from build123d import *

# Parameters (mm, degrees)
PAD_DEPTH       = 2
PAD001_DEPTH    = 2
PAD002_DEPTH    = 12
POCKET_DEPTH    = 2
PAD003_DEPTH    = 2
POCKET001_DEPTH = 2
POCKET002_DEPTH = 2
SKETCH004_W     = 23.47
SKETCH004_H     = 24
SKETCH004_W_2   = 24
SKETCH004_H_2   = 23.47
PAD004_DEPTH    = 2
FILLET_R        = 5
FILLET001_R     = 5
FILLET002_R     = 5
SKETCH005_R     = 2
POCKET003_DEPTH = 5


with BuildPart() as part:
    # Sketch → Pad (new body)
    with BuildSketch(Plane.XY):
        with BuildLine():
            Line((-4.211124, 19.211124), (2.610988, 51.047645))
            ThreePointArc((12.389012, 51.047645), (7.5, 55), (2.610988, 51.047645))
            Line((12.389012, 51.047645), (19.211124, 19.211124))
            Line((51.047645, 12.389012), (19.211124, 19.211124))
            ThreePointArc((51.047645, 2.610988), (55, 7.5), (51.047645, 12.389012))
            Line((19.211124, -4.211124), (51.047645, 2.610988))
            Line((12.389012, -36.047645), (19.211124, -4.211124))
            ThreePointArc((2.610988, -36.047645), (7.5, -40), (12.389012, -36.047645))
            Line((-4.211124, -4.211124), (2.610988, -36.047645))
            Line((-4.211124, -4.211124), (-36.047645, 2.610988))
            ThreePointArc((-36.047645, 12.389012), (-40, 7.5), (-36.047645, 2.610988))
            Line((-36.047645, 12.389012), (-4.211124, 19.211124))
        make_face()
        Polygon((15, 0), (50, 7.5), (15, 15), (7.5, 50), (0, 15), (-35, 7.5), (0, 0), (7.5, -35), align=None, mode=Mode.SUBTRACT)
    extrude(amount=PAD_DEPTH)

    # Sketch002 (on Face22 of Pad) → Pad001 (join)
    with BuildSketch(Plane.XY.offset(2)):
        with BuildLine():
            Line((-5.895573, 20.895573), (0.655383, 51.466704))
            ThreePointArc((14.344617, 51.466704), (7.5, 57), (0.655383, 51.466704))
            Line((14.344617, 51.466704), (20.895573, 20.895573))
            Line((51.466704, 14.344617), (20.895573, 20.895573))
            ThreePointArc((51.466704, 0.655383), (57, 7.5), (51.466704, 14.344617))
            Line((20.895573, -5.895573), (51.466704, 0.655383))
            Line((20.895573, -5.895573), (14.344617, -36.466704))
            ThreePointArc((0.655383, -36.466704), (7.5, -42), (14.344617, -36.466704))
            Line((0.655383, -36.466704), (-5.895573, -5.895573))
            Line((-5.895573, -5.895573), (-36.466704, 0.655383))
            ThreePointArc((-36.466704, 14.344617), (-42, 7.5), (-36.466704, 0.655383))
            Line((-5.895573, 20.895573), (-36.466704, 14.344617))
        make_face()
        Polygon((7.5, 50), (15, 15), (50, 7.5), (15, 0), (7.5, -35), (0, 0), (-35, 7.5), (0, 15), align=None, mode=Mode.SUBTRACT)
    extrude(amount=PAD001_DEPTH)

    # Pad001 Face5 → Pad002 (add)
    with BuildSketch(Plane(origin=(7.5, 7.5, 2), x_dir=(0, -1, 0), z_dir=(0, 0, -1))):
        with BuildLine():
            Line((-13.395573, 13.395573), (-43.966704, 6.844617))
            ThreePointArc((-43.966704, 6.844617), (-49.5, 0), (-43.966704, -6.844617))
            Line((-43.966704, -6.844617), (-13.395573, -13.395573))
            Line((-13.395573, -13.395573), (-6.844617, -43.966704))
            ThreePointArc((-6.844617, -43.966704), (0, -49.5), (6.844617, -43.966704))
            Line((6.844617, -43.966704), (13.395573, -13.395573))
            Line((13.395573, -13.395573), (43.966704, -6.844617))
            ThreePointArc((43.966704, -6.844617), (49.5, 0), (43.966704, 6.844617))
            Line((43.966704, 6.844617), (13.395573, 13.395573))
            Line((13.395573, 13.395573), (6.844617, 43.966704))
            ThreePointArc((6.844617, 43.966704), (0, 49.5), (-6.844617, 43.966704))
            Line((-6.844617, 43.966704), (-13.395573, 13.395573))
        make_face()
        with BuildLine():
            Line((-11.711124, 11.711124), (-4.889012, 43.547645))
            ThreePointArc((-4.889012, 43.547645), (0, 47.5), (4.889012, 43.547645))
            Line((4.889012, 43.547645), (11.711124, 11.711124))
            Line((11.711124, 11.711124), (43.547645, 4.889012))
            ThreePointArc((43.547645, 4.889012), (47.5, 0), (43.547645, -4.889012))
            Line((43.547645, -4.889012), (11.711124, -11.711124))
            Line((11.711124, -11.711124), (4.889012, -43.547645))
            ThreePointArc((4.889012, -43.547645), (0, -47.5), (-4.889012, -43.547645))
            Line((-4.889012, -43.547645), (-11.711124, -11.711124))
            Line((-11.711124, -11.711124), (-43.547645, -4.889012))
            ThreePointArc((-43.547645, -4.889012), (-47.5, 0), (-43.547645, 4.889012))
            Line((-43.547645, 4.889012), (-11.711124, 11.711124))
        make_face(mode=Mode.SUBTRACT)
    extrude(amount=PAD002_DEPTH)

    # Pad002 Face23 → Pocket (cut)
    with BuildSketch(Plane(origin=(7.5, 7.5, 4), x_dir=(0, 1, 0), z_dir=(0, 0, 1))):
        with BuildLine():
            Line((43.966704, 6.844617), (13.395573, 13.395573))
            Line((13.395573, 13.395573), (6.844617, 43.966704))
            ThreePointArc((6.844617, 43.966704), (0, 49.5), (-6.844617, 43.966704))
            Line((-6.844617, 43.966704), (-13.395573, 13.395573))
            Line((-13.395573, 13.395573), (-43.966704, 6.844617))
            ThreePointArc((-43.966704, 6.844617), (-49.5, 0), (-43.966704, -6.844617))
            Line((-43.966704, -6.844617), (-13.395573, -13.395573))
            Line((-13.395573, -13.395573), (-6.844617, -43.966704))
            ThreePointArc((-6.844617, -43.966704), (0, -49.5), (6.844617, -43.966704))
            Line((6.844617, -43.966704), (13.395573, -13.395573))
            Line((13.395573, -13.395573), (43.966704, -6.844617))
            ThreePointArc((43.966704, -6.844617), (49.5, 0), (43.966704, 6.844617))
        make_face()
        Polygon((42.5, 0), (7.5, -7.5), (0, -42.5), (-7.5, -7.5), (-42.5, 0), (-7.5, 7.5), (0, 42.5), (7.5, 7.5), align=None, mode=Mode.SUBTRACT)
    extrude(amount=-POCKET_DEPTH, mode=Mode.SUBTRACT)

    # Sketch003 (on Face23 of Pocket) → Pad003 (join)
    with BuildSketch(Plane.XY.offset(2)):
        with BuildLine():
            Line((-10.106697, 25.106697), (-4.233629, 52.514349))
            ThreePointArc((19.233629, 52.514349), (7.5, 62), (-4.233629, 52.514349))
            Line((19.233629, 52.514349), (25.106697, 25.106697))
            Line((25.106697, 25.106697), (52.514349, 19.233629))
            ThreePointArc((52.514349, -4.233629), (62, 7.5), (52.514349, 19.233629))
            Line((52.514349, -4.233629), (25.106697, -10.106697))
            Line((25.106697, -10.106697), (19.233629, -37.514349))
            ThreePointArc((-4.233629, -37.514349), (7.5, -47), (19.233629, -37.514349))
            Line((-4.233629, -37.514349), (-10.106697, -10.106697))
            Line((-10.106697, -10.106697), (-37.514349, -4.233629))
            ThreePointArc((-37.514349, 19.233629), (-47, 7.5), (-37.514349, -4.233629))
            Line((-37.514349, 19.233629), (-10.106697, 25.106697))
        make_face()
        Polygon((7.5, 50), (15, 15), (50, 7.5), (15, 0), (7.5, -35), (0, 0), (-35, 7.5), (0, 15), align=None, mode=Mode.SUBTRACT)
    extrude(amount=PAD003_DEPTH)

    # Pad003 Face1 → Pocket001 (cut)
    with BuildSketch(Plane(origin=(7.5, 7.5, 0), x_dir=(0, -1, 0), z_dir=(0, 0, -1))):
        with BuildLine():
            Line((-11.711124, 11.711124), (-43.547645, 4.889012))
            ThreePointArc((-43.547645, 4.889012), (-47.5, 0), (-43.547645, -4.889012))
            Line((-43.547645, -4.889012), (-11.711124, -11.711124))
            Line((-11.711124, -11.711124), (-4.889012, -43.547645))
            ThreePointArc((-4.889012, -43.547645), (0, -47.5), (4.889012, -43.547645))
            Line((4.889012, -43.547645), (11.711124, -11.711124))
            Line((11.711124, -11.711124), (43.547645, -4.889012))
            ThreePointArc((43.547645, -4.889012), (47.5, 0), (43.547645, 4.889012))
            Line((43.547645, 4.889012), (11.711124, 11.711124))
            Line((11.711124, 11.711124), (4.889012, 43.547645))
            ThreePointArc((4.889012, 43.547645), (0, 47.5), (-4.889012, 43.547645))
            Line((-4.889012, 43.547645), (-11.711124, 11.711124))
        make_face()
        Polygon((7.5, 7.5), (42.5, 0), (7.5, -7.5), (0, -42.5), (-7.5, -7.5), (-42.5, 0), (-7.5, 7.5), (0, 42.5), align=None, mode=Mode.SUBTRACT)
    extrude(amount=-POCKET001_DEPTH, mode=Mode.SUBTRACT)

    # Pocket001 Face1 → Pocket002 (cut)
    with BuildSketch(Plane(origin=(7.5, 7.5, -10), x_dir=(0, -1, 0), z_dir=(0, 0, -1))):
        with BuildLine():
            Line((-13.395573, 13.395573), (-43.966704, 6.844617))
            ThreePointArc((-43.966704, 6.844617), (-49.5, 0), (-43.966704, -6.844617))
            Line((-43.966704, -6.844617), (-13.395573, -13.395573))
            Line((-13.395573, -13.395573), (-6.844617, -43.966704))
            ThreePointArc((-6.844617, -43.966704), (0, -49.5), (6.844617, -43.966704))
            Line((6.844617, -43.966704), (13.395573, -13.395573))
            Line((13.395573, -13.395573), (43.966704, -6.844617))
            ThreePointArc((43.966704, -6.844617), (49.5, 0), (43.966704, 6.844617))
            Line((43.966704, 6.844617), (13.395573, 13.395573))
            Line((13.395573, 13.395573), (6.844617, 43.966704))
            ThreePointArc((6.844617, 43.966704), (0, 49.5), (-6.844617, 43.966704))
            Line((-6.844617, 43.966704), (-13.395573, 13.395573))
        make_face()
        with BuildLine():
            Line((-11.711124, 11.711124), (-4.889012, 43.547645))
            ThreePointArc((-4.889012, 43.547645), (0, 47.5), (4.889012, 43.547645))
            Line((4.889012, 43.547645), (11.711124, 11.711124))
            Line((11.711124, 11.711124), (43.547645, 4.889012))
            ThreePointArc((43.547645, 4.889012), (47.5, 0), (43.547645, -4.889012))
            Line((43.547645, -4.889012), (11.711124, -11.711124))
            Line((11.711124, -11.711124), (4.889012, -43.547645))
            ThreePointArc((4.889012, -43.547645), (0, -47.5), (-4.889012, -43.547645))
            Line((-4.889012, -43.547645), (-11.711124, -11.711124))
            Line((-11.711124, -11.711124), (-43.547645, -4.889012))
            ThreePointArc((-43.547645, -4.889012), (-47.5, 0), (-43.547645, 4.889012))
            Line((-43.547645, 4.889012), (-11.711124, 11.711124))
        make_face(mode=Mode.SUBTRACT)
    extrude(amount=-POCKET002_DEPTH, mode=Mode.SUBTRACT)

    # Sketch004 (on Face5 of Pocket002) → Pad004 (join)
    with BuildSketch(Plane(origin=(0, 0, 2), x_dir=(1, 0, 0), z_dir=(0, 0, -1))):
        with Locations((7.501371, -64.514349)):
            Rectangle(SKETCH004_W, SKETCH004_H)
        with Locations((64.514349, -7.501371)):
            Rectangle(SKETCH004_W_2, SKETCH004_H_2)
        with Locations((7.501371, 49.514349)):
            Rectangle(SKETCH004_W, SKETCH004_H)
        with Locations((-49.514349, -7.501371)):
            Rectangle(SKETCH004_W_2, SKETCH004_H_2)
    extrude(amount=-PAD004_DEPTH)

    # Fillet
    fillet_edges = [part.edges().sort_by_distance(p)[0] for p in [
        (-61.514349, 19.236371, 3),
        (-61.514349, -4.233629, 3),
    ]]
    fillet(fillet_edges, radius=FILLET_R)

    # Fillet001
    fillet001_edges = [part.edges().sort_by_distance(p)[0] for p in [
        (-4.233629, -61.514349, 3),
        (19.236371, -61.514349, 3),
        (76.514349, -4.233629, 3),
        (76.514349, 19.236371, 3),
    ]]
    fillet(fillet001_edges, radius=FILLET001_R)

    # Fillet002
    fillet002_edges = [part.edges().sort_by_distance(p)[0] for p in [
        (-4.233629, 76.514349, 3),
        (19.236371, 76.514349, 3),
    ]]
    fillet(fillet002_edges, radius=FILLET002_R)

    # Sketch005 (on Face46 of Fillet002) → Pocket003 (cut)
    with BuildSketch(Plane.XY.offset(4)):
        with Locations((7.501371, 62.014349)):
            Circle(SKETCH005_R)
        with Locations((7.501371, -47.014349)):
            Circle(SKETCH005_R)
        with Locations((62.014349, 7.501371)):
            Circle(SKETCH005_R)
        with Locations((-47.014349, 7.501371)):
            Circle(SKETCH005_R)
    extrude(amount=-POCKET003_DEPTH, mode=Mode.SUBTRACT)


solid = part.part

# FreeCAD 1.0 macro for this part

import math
import FreeCAD as App
import Part
import Sketcher


def edges_at(feature, points):
    """Names of the edges that pass closest to the given points."""
    edges = feature.Shape.Edges
    near = lambda p: min(range(len(edges)), key=lambda i: edges[i].distToShape(Part.Vertex(*p))[0])
    return sorted({f"Edge{near(p) + 1}" for p in points})

doc = App.newDocument("Part")
body = doc.addObject("PartDesign::Body", "Body")

sketch1 = doc.addObject("Sketcher::SketchObject", "Sketch")
body.addObject(sketch1)
sketch1.AttachmentSupport = (doc.XY_Plane, [""])
sketch1.MapMode = "FlatFace"
sketch1.addGeometry([
    Part.LineSegment(App.Vector(2.6, 51, 0), App.Vector(-4.2, 19.2, 0)),
    Part.LineSegment(App.Vector(-4.2, 19.2, 0), App.Vector(-36, 12.4, 0)),
    Part.ArcOfCircle(Part.Circle(App.Vector(-35, 7.5, 0), App.Vector(0, 0, 1), 5), math.radians(102), math.radians(258)),
    Part.LineSegment(App.Vector(-36, 2.6, 0), App.Vector(-4.2, -4.2, 0)),
    Part.LineSegment(App.Vector(-4.2, -4.2, 0), App.Vector(2.6, -36, 0)),
    Part.ArcOfCircle(Part.Circle(App.Vector(7.5, -35, 0), App.Vector(0, 0, 1), 5), math.radians(-168), math.radians(-12)),
    Part.LineSegment(App.Vector(12.4, -36, 0), App.Vector(19.2, -4.2, 0)),
    Part.LineSegment(App.Vector(19.2, -4.2, 0), App.Vector(51, 2.6, 0)),
    Part.ArcOfCircle(Part.Circle(App.Vector(50, 7.5, 0), App.Vector(0, 0, 1), 5), math.radians(-78), math.radians(78)),
    Part.LineSegment(App.Vector(51, 12.4, 0), App.Vector(19.2, 19.2, 0)),
    Part.LineSegment(App.Vector(19.2, 19.2, 0), App.Vector(12.4, 51, 0)),
    Part.ArcOfCircle(Part.Circle(App.Vector(7.5, 50, 0), App.Vector(0, 0, 1), 5), math.radians(12), math.radians(168)),
    Part.LineSegment(App.Vector(15, 0, 0), App.Vector(7.5, -35, 0)),
    Part.LineSegment(App.Vector(7.5, -35, 0), App.Vector(0, 0, 0)),
    Part.LineSegment(App.Vector(0, 0, 0), App.Vector(-35, 7.5, 0)),
    Part.LineSegment(App.Vector(-35, 7.5, 0), App.Vector(0, 15, 0)),
    Part.LineSegment(App.Vector(0, 15, 0), App.Vector(7.5, 50, 0)),
    Part.LineSegment(App.Vector(7.5, 50, 0), App.Vector(15, 15, 0)),
    Part.LineSegment(App.Vector(15, 15, 0), App.Vector(50, 7.5, 0)),
    Part.LineSegment(App.Vector(50, 7.5, 0), App.Vector(15, 0, 0)),
], False)
sketch1.addConstraint([
    Sketcher.Constraint("Coincident", 0, 2, 1, 1),
    Sketcher.Constraint("Tangent", 1, 2, 2, 1),
    Sketcher.Constraint("Tangent", 2, 2, 3, 1),
    Sketcher.Constraint("Coincident", 3, 2, 4, 1),
    Sketcher.Constraint("Tangent", 4, 2, 5, 1),
    Sketcher.Constraint("Tangent", 5, 2, 6, 1),
    Sketcher.Constraint("Coincident", 6, 2, 7, 1),
    Sketcher.Constraint("Tangent", 7, 2, 8, 1),
    Sketcher.Constraint("Tangent", 8, 2, 9, 1),
    Sketcher.Constraint("Coincident", 9, 2, 10, 1),
    Sketcher.Constraint("Tangent", 10, 2, 11, 1),
    Sketcher.Constraint("Tangent", 11, 2, 0, 1),
    Sketcher.Constraint("Coincident", 12, 2, 13, 1),
    Sketcher.Constraint("Coincident", 13, 2, 14, 1),
    Sketcher.Constraint("Coincident", 14, 2, 15, 1),
    Sketcher.Constraint("Coincident", 15, 2, 16, 1),
    Sketcher.Constraint("Coincident", 16, 2, 17, 1),
    Sketcher.Constraint("Coincident", 17, 2, 18, 1),
    Sketcher.Constraint("Coincident", 18, 2, 19, 1),
    Sketcher.Constraint("Coincident", 19, 2, 12, 1),
    Sketcher.Constraint("Coincident", 13, 2, -1, 1),
    Sketcher.Constraint("Coincident", 12, 2, 5, 3),
    Sketcher.Constraint("Coincident", 14, 2, 2, 3),
    Sketcher.Constraint("Coincident", 16, 2, 11, 3),
    Sketcher.Constraint("Coincident", 18, 2, 8, 3),
    Sketcher.Constraint("Equal", 2, 5),
    Sketcher.Constraint("Equal", 5, 8),
    Sketcher.Constraint("Equal", 8, 11),
    Sketcher.Constraint("PointOnObject", 15, 2, -2),
    Sketcher.Constraint("PointOnObject", 19, 2, -1),
    Sketcher.Constraint("Perpendicular", 0, 3),
    Sketcher.Constraint("Perpendicular", 1, 4),
    Sketcher.Constraint("Perpendicular", 3, 6),
    Sketcher.Constraint("Perpendicular", 4, 7),
    Sketcher.Constraint("Perpendicular", 6, 9),
    Sketcher.Constraint("Perpendicular", 7, 10),
    Sketcher.Constraint("Perpendicular", 9, 12),
    Sketcher.Constraint("Parallel", 10, 13),
    Sketcher.Constraint("Perpendicular", 12, 14),
    Sketcher.Constraint("Perpendicular", 13, 15),
    Sketcher.Constraint("Perpendicular", 14, 16),
    Sketcher.Constraint("Perpendicular", 15, 17),
    Sketcher.Constraint("Perpendicular", 16, 18),
    Sketcher.Constraint("Perpendicular", 17, 19),
    Sketcher.Constraint("Horizontal", 2, 3, 8, 3),
    Sketcher.Constraint("Horizontal", 4, 2, 5, 2),
    Sketcher.Constraint("Horizontal", 0, 2, 9, 2),
    Sketcher.Constraint("Equal", 0, 1),
    Sketcher.Constraint("Radius", 2, 5.0),
    Sketcher.Constraint("DistanceX", 2, 3, -1, 1, 35.0),
    Sketcher.Constraint("DistanceX", -1, 1, 8, 3, 50.0),
])
pad1 = doc.addObject("PartDesign::Pad", "Pad")
body.addObject(pad1)
pad1.Profile = sketch1
pad1.Length = 2

sketch2 = doc.addObject("Sketcher::SketchObject", "Sketch001")
body.addObject(sketch2)
sketch2.AttachmentSupport = (doc.XY_Plane, [""])
sketch2.MapMode = "FlatFace"
sketch2.AttachmentOffset = App.Placement(App.Vector(0, 0, 2), App.Rotation())
sketch2.addGeometry([
    Part.LineSegment(App.Vector(1, 51, 0), App.Vector(-6, 21, 0)),
    Part.LineSegment(App.Vector(-6, 21, 0), App.Vector(-36, 14, 0)),
    Part.ArcOfCircle(Part.Circle(App.Vector(-35, 8, 0), App.Vector(0, 0, 1), 7), math.radians(102), math.radians(258)),
    Part.LineSegment(App.Vector(-36, 1, 0), App.Vector(-6, -6, 0)),
    Part.LineSegment(App.Vector(-6, -6, 0), App.Vector(1, -36, 0)),
    Part.ArcOfCircle(Part.Circle(App.Vector(8, -35, 0), App.Vector(0, 0, 1), 7), math.radians(-168), math.radians(-12)),
    Part.LineSegment(App.Vector(14, -36, 0), App.Vector(21, -6, 0)),
    Part.LineSegment(App.Vector(21, -6, 0), App.Vector(51, 1, 0)),
    Part.ArcOfCircle(Part.Circle(App.Vector(50, 8, 0), App.Vector(0, 0, 1), 7), math.radians(-78), math.radians(78)),
    Part.LineSegment(App.Vector(51, 14, 0), App.Vector(21, 21, 0)),
    Part.LineSegment(App.Vector(21, 21, 0), App.Vector(14, 51, 0)),
    Part.ArcOfCircle(Part.Circle(App.Vector(8, 50, 0), App.Vector(0, 0, 1), 7), math.radians(12), math.radians(168)),
    Part.LineSegment(App.Vector(8, 50, 0), App.Vector(15, 15, 0)),
    Part.LineSegment(App.Vector(15, 15, 0), App.Vector(50, 8, 0)),
    Part.LineSegment(App.Vector(50, 8, 0), App.Vector(15, 0, 0)),
    Part.LineSegment(App.Vector(15, 0, 0), App.Vector(8, -35, 0)),
    Part.LineSegment(App.Vector(8, -35, 0), App.Vector(0, 0, 0)),
    Part.LineSegment(App.Vector(0, 0, 0), App.Vector(-35, 8, 0)),
    Part.LineSegment(App.Vector(-35, 8, 0), App.Vector(0, 15, 0)),
    Part.LineSegment(App.Vector(0, 15, 0), App.Vector(8, 50, 0)),
], False)
sketch2.addConstraint([
    Sketcher.Constraint("Coincident", 0, 2, 1, 1),
    Sketcher.Constraint("Tangent", 1, 2, 2, 1),
    Sketcher.Constraint("Tangent", 2, 2, 3, 1),
    Sketcher.Constraint("Coincident", 3, 2, 4, 1),
    Sketcher.Constraint("Tangent", 4, 2, 5, 1),
    Sketcher.Constraint("Tangent", 5, 2, 6, 1),
    Sketcher.Constraint("Coincident", 6, 2, 7, 1),
    Sketcher.Constraint("Tangent", 7, 2, 8, 1),
    Sketcher.Constraint("Tangent", 8, 2, 9, 1),
    Sketcher.Constraint("Coincident", 9, 2, 10, 1),
    Sketcher.Constraint("Tangent", 10, 2, 11, 1),
    Sketcher.Constraint("Tangent", 11, 2, 0, 1),
    Sketcher.Constraint("Coincident", 12, 2, 13, 1),
    Sketcher.Constraint("Coincident", 13, 2, 14, 1),
    Sketcher.Constraint("Coincident", 14, 2, 15, 1),
    Sketcher.Constraint("Coincident", 15, 2, 16, 1),
    Sketcher.Constraint("Coincident", 16, 2, 17, 1),
    Sketcher.Constraint("Coincident", 17, 2, 18, 1),
    Sketcher.Constraint("Coincident", 18, 2, 19, 1),
    Sketcher.Constraint("Coincident", 19, 2, 12, 1),
    Sketcher.Constraint("Coincident", 16, 2, -1, 1),
    Sketcher.Constraint("Coincident", 13, 2, 8, 3),
    Sketcher.Constraint("Coincident", 15, 2, 5, 3),
    Sketcher.Constraint("Coincident", 17, 2, 2, 3),
    Sketcher.Constraint("Coincident", 19, 2, 11, 3),
    Sketcher.Constraint("Equal", 2, 5),
    Sketcher.Constraint("Equal", 5, 8),
    Sketcher.Constraint("Equal", 8, 11),
    Sketcher.Constraint("PointOnObject", 14, 2, -1),
    Sketcher.Constraint("PointOnObject", 18, 2, -2),
    Sketcher.Constraint("Perpendicular", 0, 3),
    Sketcher.Constraint("Perpendicular", 1, 4),
    Sketcher.Constraint("Perpendicular", 3, 6),
    Sketcher.Constraint("Perpendicular", 4, 7),
    Sketcher.Constraint("Perpendicular", 6, 9),
    Sketcher.Constraint("Perpendicular", 7, 10),
    Sketcher.Constraint("Parallel", 10, 12),
    Sketcher.Constraint("Parallel", 9, 13),
    Sketcher.Constraint("Perpendicular", 12, 14),
    Sketcher.Constraint("Perpendicular", 13, 15),
    Sketcher.Constraint("Perpendicular", 14, 16),
    Sketcher.Constraint("Perpendicular", 15, 17),
    Sketcher.Constraint("Perpendicular", 16, 18),
    Sketcher.Constraint("Perpendicular", 17, 19),
    Sketcher.Constraint("Horizontal", 2, 3, 8, 3),
    Sketcher.Constraint("Horizontal", 4, 2, 5, 2),
    Sketcher.Constraint("Horizontal", 0, 2, 9, 2),
    Sketcher.Constraint("Equal", 0, 1),
    Sketcher.Constraint("Radius", 2, 7.0),
    Sketcher.Constraint("DistanceX", 2, 3, -1, 1, 35.0),
    Sketcher.Constraint("DistanceX", -1, 1, 8, 3, 50.0),
])
pad2 = doc.addObject("PartDesign::Pad", "Pad001")
body.addObject(pad2)
pad2.Profile = sketch2
pad2.Length = 2

sketch3 = doc.addObject("Sketcher::SketchObject", "Sketch002")
body.addObject(sketch3)
sketch3.AttachmentSupport = (doc.XY_Plane, [""])
sketch3.MapMode = "FlatFace"
sketch3.AttachmentOffset = App.Placement(App.Vector(0, 0, 2), App.Rotation())
sketch3.addGeometry([
    Part.LineSegment(App.Vector(-5.9, 20.9, 0), App.Vector(0.7, 51.5, 0)),
    Part.ArcOfCircle(Part.Circle(App.Vector(7.5, 50, 0), App.Vector(0, 0, 1), 7), math.radians(12), math.radians(168)),
    Part.LineSegment(App.Vector(14.3, 51.5, 0), App.Vector(20.9, 20.9, 0)),
    Part.LineSegment(App.Vector(20.9, 20.9, 0), App.Vector(51.5, 14.3, 0)),
    Part.ArcOfCircle(Part.Circle(App.Vector(50, 7.5, 0), App.Vector(0, 0, 1), 7), math.radians(-78), math.radians(78)),
    Part.LineSegment(App.Vector(51.5, 0.7, 0), App.Vector(20.9, -5.9, 0)),
    Part.LineSegment(App.Vector(20.9, -5.9, 0), App.Vector(14.3, -36.5, 0)),
    Part.ArcOfCircle(Part.Circle(App.Vector(7.5, -35, 0), App.Vector(0, 0, 1), 7), math.radians(-168), math.radians(-12)),
    Part.LineSegment(App.Vector(0.7, -36.5, 0), App.Vector(-5.9, -5.9, 0)),
    Part.LineSegment(App.Vector(-5.9, -5.9, 0), App.Vector(-36.5, 0.7, 0)),
    Part.ArcOfCircle(Part.Circle(App.Vector(-35, 7.5, 0), App.Vector(0, 0, 1), 7), math.radians(102), math.radians(258)),
    Part.LineSegment(App.Vector(-36.5, 14.3, 0), App.Vector(-5.9, 20.9, 0)),
    Part.LineSegment(App.Vector(2.6, 51, 0), App.Vector(-4.2, 19.2, 0)),
    Part.LineSegment(App.Vector(-4.2, 19.2, 0), App.Vector(-36, 12.4, 0)),
    Part.ArcOfCircle(Part.Circle(App.Vector(-35, 7.5, 0), App.Vector(0, 0, 1), 5), math.radians(102), math.radians(258)),
    Part.LineSegment(App.Vector(-36, 2.6, 0), App.Vector(-4.2, -4.2, 0)),
    Part.LineSegment(App.Vector(-4.2, -4.2, 0), App.Vector(2.6, -36, 0)),
    Part.ArcOfCircle(Part.Circle(App.Vector(7.5, -35, 0), App.Vector(0, 0, 1), 5), math.radians(-168), math.radians(-12)),
    Part.LineSegment(App.Vector(12.4, -36, 0), App.Vector(19.2, -4.2, 0)),
    Part.LineSegment(App.Vector(19.2, -4.2, 0), App.Vector(51, 2.6, 0)),
    Part.ArcOfCircle(Part.Circle(App.Vector(50, 7.5, 0), App.Vector(0, 0, 1), 5), math.radians(-78), math.radians(78)),
    Part.LineSegment(App.Vector(51, 12.4, 0), App.Vector(19.2, 19.2, 0)),
    Part.LineSegment(App.Vector(19.2, 19.2, 0), App.Vector(12.4, 51, 0)),
    Part.ArcOfCircle(Part.Circle(App.Vector(7.5, 50, 0), App.Vector(0, 0, 1), 5), math.radians(12), math.radians(168)),
], False)
sketch3.addConstraint([
    Sketcher.Constraint("Tangent", 0, 2, 1, 2),
    Sketcher.Constraint("Tangent", 1, 1, 2, 1),
    Sketcher.Constraint("Coincident", 2, 2, 3, 1),
    Sketcher.Constraint("Tangent", 3, 2, 4, 2),
    Sketcher.Constraint("Tangent", 4, 1, 5, 1),
    Sketcher.Constraint("Coincident", 5, 2, 6, 1),
    Sketcher.Constraint("Tangent", 6, 2, 7, 2),
    Sketcher.Constraint("Tangent", 7, 1, 8, 1),
    Sketcher.Constraint("Coincident", 8, 2, 9, 1),
    Sketcher.Constraint("Tangent", 9, 2, 10, 2),
    Sketcher.Constraint("Tangent", 10, 1, 11, 1),
    Sketcher.Constraint("Coincident", 11, 2, 0, 1),
    Sketcher.Constraint("Coincident", 12, 2, 13, 1),
    Sketcher.Constraint("Tangent", 13, 2, 14, 1),
    Sketcher.Constraint("Tangent", 14, 2, 15, 1),
    Sketcher.Constraint("Coincident", 15, 2, 16, 1),
    Sketcher.Constraint("Tangent", 16, 2, 17, 1),
    Sketcher.Constraint("Tangent", 17, 2, 18, 1),
    Sketcher.Constraint("Coincident", 18, 2, 19, 1),
    Sketcher.Constraint("Tangent", 19, 2, 20, 1),
    Sketcher.Constraint("Tangent", 20, 2, 21, 1),
    Sketcher.Constraint("Coincident", 21, 2, 22, 1),
    Sketcher.Constraint("Tangent", 22, 2, 23, 1),
    Sketcher.Constraint("Tangent", 23, 2, 12, 1),
    Sketcher.Constraint("Coincident", 14, 3, 10, 3),
    Sketcher.Constraint("Coincident", 17, 3, 7, 3),
    Sketcher.Constraint("Coincident", 20, 3, 4, 3),
    Sketcher.Constraint("Coincident", 23, 3, 1, 3),
    Sketcher.Constraint("Equal", 1, 4),
    Sketcher.Constraint("Equal", 4, 7),
    Sketcher.Constraint("Equal", 7, 10),
    Sketcher.Constraint("Equal", 14, 17),
    Sketcher.Constraint("Equal", 17, 20),
    Sketcher.Constraint("Equal", 20, 23),
    Sketcher.Constraint("Perpendicular", 0, 3),
    Sketcher.Constraint("Perpendicular", 2, 5),
    Sketcher.Constraint("Perpendicular", 3, 6),
    Sketcher.Constraint("Perpendicular", 5, 8),
    Sketcher.Constraint("Perpendicular", 6, 9),
    Sketcher.Constraint("Perpendicular", 8, 11),
    Sketcher.Constraint("Perpendicular", 9, 12),
    Sketcher.Constraint("Parallel", 11, 13),
    Sketcher.Constraint("Perpendicular", 12, 15),
    Sketcher.Constraint("Perpendicular", 13, 16),
    Sketcher.Constraint("Perpendicular", 15, 18),
    Sketcher.Constraint("Perpendicular", 16, 19),
    Sketcher.Constraint("Perpendicular", 18, 21),
    Sketcher.Constraint("Perpendicular", 19, 22),
    Sketcher.Constraint("Horizontal", 4, 3, 10, 3),
    Sketcher.Constraint("Horizontal", 0, 2, 1, 1),
    Sketcher.Constraint("Horizontal", 5, 2, 8, 2),
    Sketcher.Constraint("Horizontal", 2, 2, 11, 2),
    Sketcher.Constraint("Vertical", 2, 2, 5, 2),
    Sketcher.Constraint("Equal", 2, 3),
    Sketcher.Constraint("Radius", 1, 7.0),
    Sketcher.Constraint("Radius", 14, 5.0),
    Sketcher.Constraint("DistanceY", -1, 1, 1, 3, 50.0),
    Sketcher.Constraint("DistanceX", -1, 1, 4, 3, 50.0),
    Sketcher.Constraint("DistanceY", 7, 3, -1, 1, 35.0),
    Sketcher.Constraint("Distance", 0, 31.265142),
])
pad3 = doc.addObject("PartDesign::Pad", "Pad002")
body.addObject(pad3)
pad3.Profile = sketch3
pad3.Length = 12
pad3.Reversed = True

sketch4 = doc.addObject("Sketcher::SketchObject", "Sketch003")
body.addObject(sketch4)
sketch4.AttachmentSupport = (doc.XY_Plane, [""])
sketch4.MapMode = "FlatFace"
sketch4.AttachmentOffset = App.Placement(App.Vector(0, 0, 4), App.Rotation())
sketch4.addGeometry([
    Part.LineSegment(App.Vector(1, 51, 0), App.Vector(-6, 21, 0)),
    Part.LineSegment(App.Vector(-6, 21, 0), App.Vector(-36, 14, 0)),
    Part.ArcOfCircle(Part.Circle(App.Vector(-35, 8, 0), App.Vector(0, 0, 1), 7), math.radians(102), math.radians(258)),
    Part.LineSegment(App.Vector(-36, 1, 0), App.Vector(-6, -6, 0)),
    Part.LineSegment(App.Vector(-6, -6, 0), App.Vector(1, -36, 0)),
    Part.ArcOfCircle(Part.Circle(App.Vector(8, -35, 0), App.Vector(0, 0, 1), 7), math.radians(-168), math.radians(-12)),
    Part.LineSegment(App.Vector(14, -36, 0), App.Vector(21, -6, 0)),
    Part.LineSegment(App.Vector(21, -6, 0), App.Vector(51, 1, 0)),
    Part.ArcOfCircle(Part.Circle(App.Vector(50, 8, 0), App.Vector(0, 0, 1), 7), math.radians(-78), math.radians(78)),
    Part.LineSegment(App.Vector(51, 14, 0), App.Vector(21, 21, 0)),
    Part.LineSegment(App.Vector(21, 21, 0), App.Vector(14, 51, 0)),
    Part.ArcOfCircle(Part.Circle(App.Vector(8, 50, 0), App.Vector(0, 0, 1), 7), math.radians(12), math.radians(168)),
    Part.LineSegment(App.Vector(0, 15, 0), App.Vector(8, 50, 0)),
    Part.LineSegment(App.Vector(8, 50, 0), App.Vector(15, 15, 0)),
    Part.LineSegment(App.Vector(15, 15, 0), App.Vector(50, 8, 0)),
    Part.LineSegment(App.Vector(50, 8, 0), App.Vector(15, 0, 0)),
    Part.LineSegment(App.Vector(15, 0, 0), App.Vector(8, -35, 0)),
    Part.LineSegment(App.Vector(8, -35, 0), App.Vector(0, 0, 0)),
    Part.LineSegment(App.Vector(0, 0, 0), App.Vector(-35, 8, 0)),
    Part.LineSegment(App.Vector(-35, 8, 0), App.Vector(0, 15, 0)),
], False)
sketch4.addConstraint([
    Sketcher.Constraint("Coincident", 0, 2, 1, 1),
    Sketcher.Constraint("Tangent", 1, 2, 2, 1),
    Sketcher.Constraint("Tangent", 2, 2, 3, 1),
    Sketcher.Constraint("Coincident", 3, 2, 4, 1),
    Sketcher.Constraint("Tangent", 4, 2, 5, 1),
    Sketcher.Constraint("Tangent", 5, 2, 6, 1),
    Sketcher.Constraint("Coincident", 6, 2, 7, 1),
    Sketcher.Constraint("Tangent", 7, 2, 8, 1),
    Sketcher.Constraint("Tangent", 8, 2, 9, 1),
    Sketcher.Constraint("Coincident", 9, 2, 10, 1),
    Sketcher.Constraint("Tangent", 10, 2, 11, 1),
    Sketcher.Constraint("Tangent", 11, 2, 0, 1),
    Sketcher.Constraint("Coincident", 12, 2, 13, 1),
    Sketcher.Constraint("Coincident", 13, 2, 14, 1),
    Sketcher.Constraint("Coincident", 14, 2, 15, 1),
    Sketcher.Constraint("Coincident", 15, 2, 16, 1),
    Sketcher.Constraint("Coincident", 16, 2, 17, 1),
    Sketcher.Constraint("Coincident", 17, 2, 18, 1),
    Sketcher.Constraint("Coincident", 18, 2, 19, 1),
    Sketcher.Constraint("Coincident", 19, 2, 12, 1),
    Sketcher.Constraint("Coincident", 17, 2, -1, 1),
    Sketcher.Constraint("Coincident", 12, 2, 11, 3),
    Sketcher.Constraint("Coincident", 14, 2, 8, 3),
    Sketcher.Constraint("Coincident", 16, 2, 5, 3),
    Sketcher.Constraint("Coincident", 18, 2, 2, 3),
    Sketcher.Constraint("Equal", 2, 5),
    Sketcher.Constraint("Equal", 5, 8),
    Sketcher.Constraint("Equal", 8, 11),
    Sketcher.Constraint("PointOnObject", 15, 2, -1),
    Sketcher.Constraint("PointOnObject", 19, 2, -2),
    Sketcher.Constraint("Perpendicular", 0, 3),
    Sketcher.Constraint("Perpendicular", 1, 4),
    Sketcher.Constraint("Perpendicular", 3, 6),
    Sketcher.Constraint("Perpendicular", 4, 7),
    Sketcher.Constraint("Perpendicular", 6, 9),
    Sketcher.Constraint("Perpendicular", 7, 10),
    Sketcher.Constraint("Perpendicular", 9, 12),
    Sketcher.Constraint("Parallel", 10, 13),
    Sketcher.Constraint("Perpendicular", 12, 14),
    Sketcher.Constraint("Perpendicular", 13, 15),
    Sketcher.Constraint("Perpendicular", 14, 16),
    Sketcher.Constraint("Perpendicular", 15, 17),
    Sketcher.Constraint("Perpendicular", 16, 18),
    Sketcher.Constraint("Perpendicular", 17, 19),
    Sketcher.Constraint("Horizontal", 2, 3, 8, 3),
    Sketcher.Constraint("Horizontal", 4, 2, 5, 2),
    Sketcher.Constraint("Horizontal", 0, 2, 9, 2),
    Sketcher.Constraint("Equal", 0, 1),
    Sketcher.Constraint("Radius", 2, 7.0),
    Sketcher.Constraint("DistanceX", 2, 3, -1, 1, 35.0),
    Sketcher.Constraint("DistanceX", -1, 1, 8, 3, 50.0),
])
pocket1 = doc.addObject("PartDesign::Pocket", "Pocket")
body.addObject(pocket1)
pocket1.Profile = sketch4
pocket1.Length = 2

sketch5 = doc.addObject("Sketcher::SketchObject", "Sketch004")
body.addObject(sketch5)
sketch5.AttachmentSupport = (doc.XY_Plane, [""])
sketch5.MapMode = "FlatFace"
sketch5.AttachmentOffset = App.Placement(App.Vector(0, 0, 2), App.Rotation())
sketch5.addGeometry([
    Part.LineSegment(App.Vector(-4, 53, 0), App.Vector(-10, 25, 0)),
    Part.LineSegment(App.Vector(-10, 25, 0), App.Vector(-38, 19, 0)),
    Part.ArcOfCircle(Part.Circle(App.Vector(-35, 8, 0), App.Vector(0, 0, 1), 12), math.radians(102), math.radians(258)),
    Part.LineSegment(App.Vector(-38, -4, 0), App.Vector(-10, -10, 0)),
    Part.LineSegment(App.Vector(-10, -10, 0), App.Vector(-4, -38, 0)),
    Part.ArcOfCircle(Part.Circle(App.Vector(8, -35, 0), App.Vector(0, 0, 1), 12), math.radians(-168), math.radians(-12)),
    Part.LineSegment(App.Vector(19, -38, 0), App.Vector(25, -10, 0)),
    Part.LineSegment(App.Vector(25, -10, 0), App.Vector(53, -4, 0)),
    Part.ArcOfCircle(Part.Circle(App.Vector(50, 8, 0), App.Vector(0, 0, 1), 12), math.radians(-78), math.radians(78)),
    Part.LineSegment(App.Vector(53, 19, 0), App.Vector(25, 25, 0)),
    Part.LineSegment(App.Vector(25, 25, 0), App.Vector(19, 53, 0)),
    Part.ArcOfCircle(Part.Circle(App.Vector(8, 50, 0), App.Vector(0, 0, 1), 12), math.radians(12), math.radians(168)),
    Part.LineSegment(App.Vector(8, 50, 0), App.Vector(15, 15, 0)),
    Part.LineSegment(App.Vector(15, 15, 0), App.Vector(50, 8, 0)),
    Part.LineSegment(App.Vector(50, 8, 0), App.Vector(15, 0, 0)),
    Part.LineSegment(App.Vector(15, 0, 0), App.Vector(8, -35, 0)),
    Part.LineSegment(App.Vector(8, -35, 0), App.Vector(0, 0, 0)),
    Part.LineSegment(App.Vector(0, 0, 0), App.Vector(-35, 8, 0)),
    Part.LineSegment(App.Vector(-35, 8, 0), App.Vector(0, 15, 0)),
    Part.LineSegment(App.Vector(0, 15, 0), App.Vector(8, 50, 0)),
], False)
sketch5.addConstraint([
    Sketcher.Constraint("Coincident", 0, 2, 1, 1),
    Sketcher.Constraint("Tangent", 1, 2, 2, 1),
    Sketcher.Constraint("Tangent", 2, 2, 3, 1),
    Sketcher.Constraint("Coincident", 3, 2, 4, 1),
    Sketcher.Constraint("Tangent", 4, 2, 5, 1),
    Sketcher.Constraint("Tangent", 5, 2, 6, 1),
    Sketcher.Constraint("Coincident", 6, 2, 7, 1),
    Sketcher.Constraint("Tangent", 7, 2, 8, 1),
    Sketcher.Constraint("Tangent", 8, 2, 9, 1),
    Sketcher.Constraint("Coincident", 9, 2, 10, 1),
    Sketcher.Constraint("Tangent", 10, 2, 11, 1),
    Sketcher.Constraint("Tangent", 11, 2, 0, 1),
    Sketcher.Constraint("Coincident", 12, 2, 13, 1),
    Sketcher.Constraint("Coincident", 13, 2, 14, 1),
    Sketcher.Constraint("Coincident", 14, 2, 15, 1),
    Sketcher.Constraint("Coincident", 15, 2, 16, 1),
    Sketcher.Constraint("Coincident", 16, 2, 17, 1),
    Sketcher.Constraint("Coincident", 17, 2, 18, 1),
    Sketcher.Constraint("Coincident", 18, 2, 19, 1),
    Sketcher.Constraint("Coincident", 19, 2, 12, 1),
    Sketcher.Constraint("Coincident", 16, 2, -1, 1),
    Sketcher.Constraint("Coincident", 13, 2, 8, 3),
    Sketcher.Constraint("Coincident", 15, 2, 5, 3),
    Sketcher.Constraint("Coincident", 17, 2, 2, 3),
    Sketcher.Constraint("Coincident", 19, 2, 11, 3),
    Sketcher.Constraint("Equal", 2, 5),
    Sketcher.Constraint("Equal", 5, 8),
    Sketcher.Constraint("Equal", 8, 11),
    Sketcher.Constraint("PointOnObject", 14, 2, -1),
    Sketcher.Constraint("PointOnObject", 18, 2, -2),
    Sketcher.Constraint("Perpendicular", 0, 3),
    Sketcher.Constraint("Perpendicular", 1, 4),
    Sketcher.Constraint("Perpendicular", 3, 6),
    Sketcher.Constraint("Perpendicular", 4, 7),
    Sketcher.Constraint("Perpendicular", 6, 9),
    Sketcher.Constraint("Perpendicular", 7, 10),
    Sketcher.Constraint("Parallel", 10, 12),
    Sketcher.Constraint("Parallel", 9, 13),
    Sketcher.Constraint("Perpendicular", 12, 14),
    Sketcher.Constraint("Perpendicular", 13, 15),
    Sketcher.Constraint("Perpendicular", 14, 16),
    Sketcher.Constraint("Perpendicular", 15, 17),
    Sketcher.Constraint("Perpendicular", 16, 18),
    Sketcher.Constraint("Perpendicular", 17, 19),
    Sketcher.Constraint("Horizontal", 2, 3, 8, 3),
    Sketcher.Constraint("Horizontal", 4, 2, 5, 2),
    Sketcher.Constraint("Horizontal", 0, 2, 9, 2),
    Sketcher.Constraint("Equal", 0, 1),
    Sketcher.Constraint("Radius", 2, 12.0),
    Sketcher.Constraint("DistanceX", 2, 3, -1, 1, 35.0),
    Sketcher.Constraint("DistanceX", -1, 1, 8, 3, 50.0),
])
pad4 = doc.addObject("PartDesign::Pad", "Pad003")
body.addObject(pad4)
pad4.Profile = sketch5
pad4.Length = 2

sketch6 = doc.addObject("Sketcher::SketchObject", "Sketch005")
body.addObject(sketch6)
sketch6.AttachmentSupport = (doc.XY_Plane, [""])
sketch6.MapMode = "FlatFace"
sketch6.addGeometry([
    Part.LineSegment(App.Vector(-4.2, 19.2, 0), App.Vector(2.6, 51, 0)),
    Part.ArcOfCircle(Part.Circle(App.Vector(7.5, 50, 0), App.Vector(0, 0, 1), 5), math.radians(12), math.radians(168)),
    Part.LineSegment(App.Vector(12.4, 51, 0), App.Vector(19.2, 19.2, 0)),
    Part.LineSegment(App.Vector(19.2, 19.2, 0), App.Vector(51, 12.4, 0)),
    Part.ArcOfCircle(Part.Circle(App.Vector(50, 7.5, 0), App.Vector(0, 0, 1), 5), math.radians(-78), math.radians(78)),
    Part.LineSegment(App.Vector(51, 2.6, 0), App.Vector(19.2, -4.2, 0)),
    Part.LineSegment(App.Vector(19.2, -4.2, 0), App.Vector(12.4, -36, 0)),
    Part.ArcOfCircle(Part.Circle(App.Vector(7.5, -35, 0), App.Vector(0, 0, 1), 5), math.radians(-168), math.radians(-12)),
    Part.LineSegment(App.Vector(2.6, -36, 0), App.Vector(-4.2, -4.2, 0)),
    Part.LineSegment(App.Vector(-4.2, -4.2, 0), App.Vector(-36, 2.6, 0)),
    Part.ArcOfCircle(Part.Circle(App.Vector(-35, 7.5, 0), App.Vector(0, 0, 1), 5), math.radians(102), math.radians(258)),
    Part.LineSegment(App.Vector(-36, 12.4, 0), App.Vector(-4.2, 19.2, 0)),
    Part.LineSegment(App.Vector(-35, 7.5, 0), App.Vector(0, 0, 0)),
    Part.LineSegment(App.Vector(0, 0, 0), App.Vector(7.5, -35, 0)),
    Part.LineSegment(App.Vector(7.5, -35, 0), App.Vector(15, 0, 0)),
    Part.LineSegment(App.Vector(15, 0, 0), App.Vector(50, 7.5, 0)),
    Part.LineSegment(App.Vector(50, 7.5, 0), App.Vector(15, 15, 0)),
    Part.LineSegment(App.Vector(15, 15, 0), App.Vector(7.5, 50, 0)),
    Part.LineSegment(App.Vector(7.5, 50, 0), App.Vector(0, 15, 0)),
    Part.LineSegment(App.Vector(0, 15, 0), App.Vector(-35, 7.5, 0)),
], False)
sketch6.addConstraint([
    Sketcher.Constraint("Tangent", 0, 2, 1, 2),
    Sketcher.Constraint("Tangent", 1, 1, 2, 1),
    Sketcher.Constraint("Coincident", 2, 2, 3, 1),
    Sketcher.Constraint("Tangent", 3, 2, 4, 2),
    Sketcher.Constraint("Tangent", 4, 1, 5, 1),
    Sketcher.Constraint("Coincident", 5, 2, 6, 1),
    Sketcher.Constraint("Tangent", 6, 2, 7, 2),
    Sketcher.Constraint("Tangent", 7, 1, 8, 1),
    Sketcher.Constraint("Coincident", 8, 2, 9, 1),
    Sketcher.Constraint("Tangent", 9, 2, 10, 2),
    Sketcher.Constraint("Tangent", 10, 1, 11, 1),
    Sketcher.Constraint("Coincident", 11, 2, 0, 1),
    Sketcher.Constraint("Coincident", 12, 2, 13, 1),
    Sketcher.Constraint("Coincident", 13, 2, 14, 1),
    Sketcher.Constraint("Coincident", 14, 2, 15, 1),
    Sketcher.Constraint("Coincident", 15, 2, 16, 1),
    Sketcher.Constraint("Coincident", 16, 2, 17, 1),
    Sketcher.Constraint("Coincident", 17, 2, 18, 1),
    Sketcher.Constraint("Coincident", 18, 2, 19, 1),
    Sketcher.Constraint("Coincident", 19, 2, 12, 1),
    Sketcher.Constraint("Coincident", 12, 2, -1, 1),
    Sketcher.Constraint("Coincident", 13, 2, 7, 3),
    Sketcher.Constraint("Coincident", 15, 2, 4, 3),
    Sketcher.Constraint("Coincident", 17, 2, 1, 3),
    Sketcher.Constraint("Coincident", 19, 2, 10, 3),
    Sketcher.Constraint("Equal", 1, 4),
    Sketcher.Constraint("Equal", 4, 7),
    Sketcher.Constraint("Equal", 7, 10),
    Sketcher.Constraint("PointOnObject", 14, 2, -1),
    Sketcher.Constraint("PointOnObject", 18, 2, -2),
    Sketcher.Constraint("Perpendicular", 0, 3),
    Sketcher.Constraint("Perpendicular", 2, 5),
    Sketcher.Constraint("Perpendicular", 3, 6),
    Sketcher.Constraint("Perpendicular", 5, 8),
    Sketcher.Constraint("Perpendicular", 6, 9),
    Sketcher.Constraint("Perpendicular", 8, 11),
    Sketcher.Constraint("Parallel", 9, 12),
    Sketcher.Constraint("Perpendicular", 11, 13),
    Sketcher.Constraint("Perpendicular", 12, 14),
    Sketcher.Constraint("Perpendicular", 13, 15),
    Sketcher.Constraint("Perpendicular", 14, 16),
    Sketcher.Constraint("Perpendicular", 15, 17),
    Sketcher.Constraint("Perpendicular", 16, 18),
    Sketcher.Constraint("Perpendicular", 17, 19),
    Sketcher.Constraint("Horizontal", 4, 3, 10, 3),
    Sketcher.Constraint("Horizontal", 0, 2, 1, 1),
    Sketcher.Constraint("Horizontal", 2, 2, 11, 2),
    Sketcher.Constraint("Equal", 2, 3),
    Sketcher.Constraint("Radius", 1, 5.0),
    Sketcher.Constraint("DistanceY", -1, 1, 1, 3, 50.0),
    Sketcher.Constraint("DistanceY", 7, 3, -1, 1, 35.0),
])
pocket2 = doc.addObject("PartDesign::Pocket", "Pocket001")
body.addObject(pocket2)
pocket2.Profile = sketch6
pocket2.Length = 2
pocket2.Reversed = True

sketch7 = doc.addObject("Sketcher::SketchObject", "Sketch006")
body.addObject(sketch7)
sketch7.AttachmentSupport = (doc.XY_Plane, [""])
sketch7.MapMode = "FlatFace"
sketch7.AttachmentOffset = App.Placement(App.Vector(0, 0, -10), App.Rotation())
sketch7.addGeometry([
    Part.LineSegment(App.Vector(-5.9, 20.9, 0), App.Vector(0.7, 51.5, 0)),
    Part.ArcOfCircle(Part.Circle(App.Vector(7.5, 50, 0), App.Vector(0, 0, 1), 7), math.radians(12), math.radians(168)),
    Part.LineSegment(App.Vector(14.3, 51.5, 0), App.Vector(20.9, 20.9, 0)),
    Part.LineSegment(App.Vector(20.9, 20.9, 0), App.Vector(51.5, 14.3, 0)),
    Part.ArcOfCircle(Part.Circle(App.Vector(50, 7.5, 0), App.Vector(0, 0, 1), 7), math.radians(-78), math.radians(78)),
    Part.LineSegment(App.Vector(51.5, 0.7, 0), App.Vector(20.9, -5.9, 0)),
    Part.LineSegment(App.Vector(20.9, -5.9, 0), App.Vector(14.3, -36.5, 0)),
    Part.ArcOfCircle(Part.Circle(App.Vector(7.5, -35, 0), App.Vector(0, 0, 1), 7), math.radians(-168), math.radians(-12)),
    Part.LineSegment(App.Vector(0.7, -36.5, 0), App.Vector(-5.9, -5.9, 0)),
    Part.LineSegment(App.Vector(-5.9, -5.9, 0), App.Vector(-36.5, 0.7, 0)),
    Part.ArcOfCircle(Part.Circle(App.Vector(-35, 7.5, 0), App.Vector(0, 0, 1), 7), math.radians(102), math.radians(258)),
    Part.LineSegment(App.Vector(-36.5, 14.3, 0), App.Vector(-5.9, 20.9, 0)),
    Part.LineSegment(App.Vector(2.6, 51, 0), App.Vector(-4.2, 19.2, 0)),
    Part.LineSegment(App.Vector(-4.2, 19.2, 0), App.Vector(-36, 12.4, 0)),
    Part.ArcOfCircle(Part.Circle(App.Vector(-35, 7.5, 0), App.Vector(0, 0, 1), 5), math.radians(102), math.radians(258)),
    Part.LineSegment(App.Vector(-36, 2.6, 0), App.Vector(-4.2, -4.2, 0)),
    Part.LineSegment(App.Vector(-4.2, -4.2, 0), App.Vector(2.6, -36, 0)),
    Part.ArcOfCircle(Part.Circle(App.Vector(7.5, -35, 0), App.Vector(0, 0, 1), 5), math.radians(-168), math.radians(-12)),
    Part.LineSegment(App.Vector(12.4, -36, 0), App.Vector(19.2, -4.2, 0)),
    Part.LineSegment(App.Vector(19.2, -4.2, 0), App.Vector(51, 2.6, 0)),
    Part.ArcOfCircle(Part.Circle(App.Vector(50, 7.5, 0), App.Vector(0, 0, 1), 5), math.radians(-78), math.radians(78)),
    Part.LineSegment(App.Vector(51, 12.4, 0), App.Vector(19.2, 19.2, 0)),
    Part.LineSegment(App.Vector(19.2, 19.2, 0), App.Vector(12.4, 51, 0)),
    Part.ArcOfCircle(Part.Circle(App.Vector(7.5, 50, 0), App.Vector(0, 0, 1), 5), math.radians(12), math.radians(168)),
], False)
sketch7.addConstraint([
    Sketcher.Constraint("Tangent", 0, 2, 1, 2),
    Sketcher.Constraint("Tangent", 1, 1, 2, 1),
    Sketcher.Constraint("Coincident", 2, 2, 3, 1),
    Sketcher.Constraint("Tangent", 3, 2, 4, 2),
    Sketcher.Constraint("Tangent", 4, 1, 5, 1),
    Sketcher.Constraint("Coincident", 5, 2, 6, 1),
    Sketcher.Constraint("Tangent", 6, 2, 7, 2),
    Sketcher.Constraint("Tangent", 7, 1, 8, 1),
    Sketcher.Constraint("Coincident", 8, 2, 9, 1),
    Sketcher.Constraint("Tangent", 9, 2, 10, 2),
    Sketcher.Constraint("Tangent", 10, 1, 11, 1),
    Sketcher.Constraint("Coincident", 11, 2, 0, 1),
    Sketcher.Constraint("Coincident", 12, 2, 13, 1),
    Sketcher.Constraint("Tangent", 13, 2, 14, 1),
    Sketcher.Constraint("Tangent", 14, 2, 15, 1),
    Sketcher.Constraint("Coincident", 15, 2, 16, 1),
    Sketcher.Constraint("Tangent", 16, 2, 17, 1),
    Sketcher.Constraint("Tangent", 17, 2, 18, 1),
    Sketcher.Constraint("Coincident", 18, 2, 19, 1),
    Sketcher.Constraint("Tangent", 19, 2, 20, 1),
    Sketcher.Constraint("Tangent", 20, 2, 21, 1),
    Sketcher.Constraint("Coincident", 21, 2, 22, 1),
    Sketcher.Constraint("Tangent", 22, 2, 23, 1),
    Sketcher.Constraint("Tangent", 23, 2, 12, 1),
    Sketcher.Constraint("Coincident", 14, 3, 10, 3),
    Sketcher.Constraint("Coincident", 17, 3, 7, 3),
    Sketcher.Constraint("Coincident", 20, 3, 4, 3),
    Sketcher.Constraint("Coincident", 23, 3, 1, 3),
    Sketcher.Constraint("Equal", 1, 4),
    Sketcher.Constraint("Equal", 4, 7),
    Sketcher.Constraint("Equal", 7, 10),
    Sketcher.Constraint("Equal", 14, 17),
    Sketcher.Constraint("Equal", 17, 20),
    Sketcher.Constraint("Equal", 20, 23),
    Sketcher.Constraint("Perpendicular", 0, 3),
    Sketcher.Constraint("Perpendicular", 2, 5),
    Sketcher.Constraint("Perpendicular", 3, 6),
    Sketcher.Constraint("Perpendicular", 5, 8),
    Sketcher.Constraint("Perpendicular", 6, 9),
    Sketcher.Constraint("Perpendicular", 8, 11),
    Sketcher.Constraint("Perpendicular", 9, 12),
    Sketcher.Constraint("Parallel", 11, 13),
    Sketcher.Constraint("Perpendicular", 12, 15),
    Sketcher.Constraint("Perpendicular", 13, 16),
    Sketcher.Constraint("Perpendicular", 15, 18),
    Sketcher.Constraint("Perpendicular", 16, 19),
    Sketcher.Constraint("Perpendicular", 18, 21),
    Sketcher.Constraint("Perpendicular", 19, 22),
    Sketcher.Constraint("Horizontal", 4, 3, 10, 3),
    Sketcher.Constraint("Horizontal", 0, 2, 1, 1),
    Sketcher.Constraint("Horizontal", 5, 2, 8, 2),
    Sketcher.Constraint("Horizontal", 2, 2, 11, 2),
    Sketcher.Constraint("Vertical", 2, 2, 5, 2),
    Sketcher.Constraint("Equal", 2, 3),
    Sketcher.Constraint("Radius", 1, 7.0),
    Sketcher.Constraint("Radius", 14, 5.0),
    Sketcher.Constraint("DistanceY", -1, 1, 1, 3, 50.0),
    Sketcher.Constraint("DistanceX", -1, 1, 4, 3, 50.0),
    Sketcher.Constraint("DistanceY", 7, 3, -1, 1, 35.0),
    Sketcher.Constraint("Distance", 0, 31.265142),
])
pocket3 = doc.addObject("PartDesign::Pocket", "Pocket002")
body.addObject(pocket3)
pocket3.Profile = sketch7
pocket3.Length = 2
pocket3.Reversed = True

sketch8 = doc.addObject("Sketcher::SketchObject", "Sketch007")
body.addObject(sketch8)
sketch8.AttachmentSupport = (doc.XY_Plane, [""])
sketch8.MapMode = "FlatFace"
sketch8.AttachmentOffset = App.Placement(App.Vector(0, 0, 2), App.Rotation())
sketch8.addGeometry([
    Part.LineSegment(App.Vector(-4, 53, 0), App.Vector(-4, 77, 0)),
    Part.LineSegment(App.Vector(-4, 77, 0), App.Vector(19, 77, 0)),
    Part.LineSegment(App.Vector(19, 77, 0), App.Vector(19, 53, 0)),
    Part.LineSegment(App.Vector(19, 53, 0), App.Vector(-4, 53, 0)),
    Part.LineSegment(App.Vector(53, -4, 0), App.Vector(53, 19, 0)),
    Part.LineSegment(App.Vector(53, 19, 0), App.Vector(77, 19, 0)),
    Part.LineSegment(App.Vector(77, 19, 0), App.Vector(77, -4, 0)),
    Part.LineSegment(App.Vector(77, -4, 0), App.Vector(53, -4, 0)),
    Part.LineSegment(App.Vector(-4, -62, 0), App.Vector(-4, -38, 0)),
    Part.LineSegment(App.Vector(-4, -38, 0), App.Vector(19, -38, 0)),
    Part.LineSegment(App.Vector(19, -38, 0), App.Vector(19, -62, 0)),
    Part.LineSegment(App.Vector(19, -62, 0), App.Vector(-4, -62, 0)),
    Part.LineSegment(App.Vector(-62, -4, 0), App.Vector(-62, 19, 0)),
    Part.LineSegment(App.Vector(-62, 19, 0), App.Vector(-38, 19, 0)),
    Part.LineSegment(App.Vector(-38, 19, 0), App.Vector(-38, -4, 0)),
    Part.LineSegment(App.Vector(-38, -4, 0), App.Vector(-62, -4, 0)),
], False)
sketch8.addConstraint([
    Sketcher.Constraint("Coincident", 0, 2, 1, 1),
    Sketcher.Constraint("Coincident", 1, 2, 2, 1),
    Sketcher.Constraint("Coincident", 2, 2, 3, 1),
    Sketcher.Constraint("Coincident", 3, 2, 0, 1),
    Sketcher.Constraint("Coincident", 4, 2, 5, 1),
    Sketcher.Constraint("Coincident", 5, 2, 6, 1),
    Sketcher.Constraint("Coincident", 6, 2, 7, 1),
    Sketcher.Constraint("Coincident", 7, 2, 4, 1),
    Sketcher.Constraint("Coincident", 8, 2, 9, 1),
    Sketcher.Constraint("Coincident", 9, 2, 10, 1),
    Sketcher.Constraint("Coincident", 10, 2, 11, 1),
    Sketcher.Constraint("Coincident", 11, 2, 8, 1),
    Sketcher.Constraint("Coincident", 12, 2, 13, 1),
    Sketcher.Constraint("Coincident", 13, 2, 14, 1),
    Sketcher.Constraint("Coincident", 14, 2, 15, 1),
    Sketcher.Constraint("Coincident", 15, 2, 12, 1),
    Sketcher.Constraint("Vertical", 0),
    Sketcher.Constraint("Horizontal", 1),
    Sketcher.Constraint("Vertical", 2),
    Sketcher.Constraint("Horizontal", 3),
    Sketcher.Constraint("Vertical", 4),
    Sketcher.Constraint("Horizontal", 5),
    Sketcher.Constraint("Vertical", 6),
    Sketcher.Constraint("Horizontal", 7),
    Sketcher.Constraint("Vertical", 8),
    Sketcher.Constraint("Horizontal", 9),
    Sketcher.Constraint("Vertical", 10),
    Sketcher.Constraint("Horizontal", 11),
    Sketcher.Constraint("Vertical", 12),
    Sketcher.Constraint("Horizontal", 13),
    Sketcher.Constraint("Vertical", 14),
    Sketcher.Constraint("Horizontal", 15),
    Sketcher.Constraint("Horizontal", 5, 2, 12, 2),
    Sketcher.Constraint("Horizontal", 7, 2, 14, 2),
    Sketcher.Constraint("Vertical", 3, 2, 8, 2),
    Sketcher.Constraint("Vertical", 2, 2, 9, 2),
    Sketcher.Constraint("Equal", 7, 13),
    Sketcher.Constraint("Equal", 15, 0),
    Sketcher.Constraint("Equal", 11, 4),
    Sketcher.Constraint("Equal", 2, 8),
    Sketcher.Constraint("DistanceX", 5, 1, 5, 2, 24.0),
    Sketcher.Constraint("DistanceX", 1, 1, 1, 2, 23.47),
    Sketcher.Constraint("DistanceY", 8, 2, 3, 2, 90.028698),
    Sketcher.Constraint("DistanceX", 0, 2, -1, 1, 4.233629),
    Sketcher.Constraint("DistanceY", -1, 1, 0, 2, 76.514349),
    Sketcher.Constraint("DistanceX", -1, 1, 4, 2, 52.514349),
    Sketcher.Constraint("DistanceY", -1, 1, 4, 2, 19.236371),
    Sketcher.Constraint("DistanceX", 12, 2, -1, 1, 61.514349),
])
pad5 = doc.addObject("PartDesign::Pad", "Pad004")
body.addObject(pad5)
pad5.Profile = sketch8
pad5.Length = 2
doc.recompute()

fillet = doc.addObject("PartDesign::Fillet", "Fillet")
body.addObject(fillet)
fillet.Base = (pad5, edges_at(pad5, [(-61.514, 19.236, 3), (-61.514, -4.234, 3)]))
fillet.Radius = 5
doc.recompute()

fillet2 = doc.addObject("PartDesign::Fillet", "Fillet001")
body.addObject(fillet2)
fillet2.Base = (fillet, edges_at(fillet, [
    (-4.234, -61.514, 3),
    (19.236, -61.514, 3),
    (76.514, -4.234, 3),
    (76.514, 19.236, 3),
]))
fillet2.Radius = 5
doc.recompute()

fillet3 = doc.addObject("PartDesign::Fillet", "Fillet002")
body.addObject(fillet3)
fillet3.Base = (fillet2, edges_at(fillet2, [(-4.234, 76.514, 3), (19.236, 76.514, 3)]))
fillet3.Radius = 5

sketch9 = doc.addObject("Sketcher::SketchObject", "Sketch008")
body.addObject(sketch9)
sketch9.AttachmentSupport = (doc.XY_Plane, [""])
sketch9.MapMode = "FlatFace"
sketch9.AttachmentOffset = App.Placement(App.Vector(0, 0, 4), App.Rotation())
sketch9.addGeometry([
    Part.Circle(App.Vector(7.5, 62, 0), App.Vector(0, 0, 1), 2),
    Part.Circle(App.Vector(7.5, -47, 0), App.Vector(0, 0, 1), 2),
    Part.Circle(App.Vector(62, 7.5, 0), App.Vector(0, 0, 1), 2),
    Part.Circle(App.Vector(-47, 7.5, 0), App.Vector(0, 0, 1), 2),
], False)
sketch9.addConstraint([
    Sketcher.Constraint("Equal", 0, 1),
    Sketcher.Constraint("Equal", 1, 2),
    Sketcher.Constraint("Equal", 2, 3),
    Sketcher.Constraint("Horizontal", 2, 3, 3, 3),
    Sketcher.Constraint("Vertical", 0, 3, 1, 3),
    Sketcher.Constraint("Diameter", 0, 4.0),
    Sketcher.Constraint("DistanceY", 1, 3, 0, 3, 109.028698),
    Sketcher.Constraint("DistanceX", 3, 3, 2, 3, 109.028698),
    Sketcher.Constraint("DistanceX", -1, 1, 0, 3, 7.501371),
    Sketcher.Constraint("DistanceY", -1, 1, 0, 3, 62.014349),
    Sketcher.Constraint("DistanceX", -1, 1, 2, 3, 62.014349),
    Sketcher.Constraint("DistanceY", -1, 1, 2, 3, 7.501371),
])
pocket4 = doc.addObject("PartDesign::Pocket", "Pocket003")
body.addObject(pocket4)
pocket4.Profile = sketch9
pocket4.Length = 5

doc.recompute()
